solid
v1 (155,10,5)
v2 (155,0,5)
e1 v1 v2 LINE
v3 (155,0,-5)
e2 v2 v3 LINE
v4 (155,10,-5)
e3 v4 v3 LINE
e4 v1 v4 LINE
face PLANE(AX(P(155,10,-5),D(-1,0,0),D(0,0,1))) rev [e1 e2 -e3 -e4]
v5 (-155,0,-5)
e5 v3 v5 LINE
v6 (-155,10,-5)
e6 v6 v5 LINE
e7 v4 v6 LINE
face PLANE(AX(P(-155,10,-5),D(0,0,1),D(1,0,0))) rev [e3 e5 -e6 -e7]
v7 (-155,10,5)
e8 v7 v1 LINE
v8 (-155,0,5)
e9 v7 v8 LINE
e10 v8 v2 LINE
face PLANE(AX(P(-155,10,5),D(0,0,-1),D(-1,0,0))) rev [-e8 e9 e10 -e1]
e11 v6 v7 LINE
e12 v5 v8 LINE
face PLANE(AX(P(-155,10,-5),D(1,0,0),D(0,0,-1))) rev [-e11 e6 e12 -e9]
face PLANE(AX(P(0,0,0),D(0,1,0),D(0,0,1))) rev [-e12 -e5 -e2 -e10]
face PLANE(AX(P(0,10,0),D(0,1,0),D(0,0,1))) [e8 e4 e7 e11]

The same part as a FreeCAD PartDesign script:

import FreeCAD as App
import Part
import Sketcher

V = App.Vector


def add_polygon(sketch, points):
    """Adds a closed chain of lines whose ends are joined by coincident constraints."""
    first, n = sketch.GeometryCount, len(points)
    for a, b in zip(points, points[1:] + points[:1]):
        sketch.addGeometry(Part.LineSegment(App.Vector(*a, 0), App.Vector(*b, 0)), False)
    for i in range(n):
        sketch.addConstraint(Sketcher.Constraint("Coincident", first + i, 2, first + (i + 1) % n, 1))

doc = App.newDocument("Part")
body = doc.addObject("PartDesign::Body", "Body")

sketch1 = doc.addObject("Sketcher::SketchObject", "Sketch")
body.addObject(sketch1)
sketch1.AttachmentSupport = (doc.XZ_Plane, [""])
sketch1.MapMode = "FlatFace"
add_polygon(sketch1, [(-155, -5), (-155, 5), (155, 5), (155, -5)])
sketch1.addConstraint(Sketcher.Constraint("Vertical", 0))
sketch1.addConstraint(Sketcher.Constraint("Horizontal", 1))
sketch1.addConstraint(Sketcher.Constraint("Vertical", 2))
sketch1.addConstraint(Sketcher.Constraint("Horizontal", 3))
sketch1.addConstraint(Sketcher.Constraint("Symmetric", 0, 2, 2, 2, -1, 1))
sketch1.addConstraint(Sketcher.Constraint("DistanceX", 1, 1, 1, 2, 310.0))
sketch1.addConstraint(Sketcher.Constraint("DistanceY", 0, 1, 0, 2, 10.0))
pad1 = doc.addObject("PartDesign::Pad", "Pad")
body.addObject(pad1)
pad1.Profile = sketch1
pad1.Length = 10
pad1.Reversed = True

doc.recompute()
